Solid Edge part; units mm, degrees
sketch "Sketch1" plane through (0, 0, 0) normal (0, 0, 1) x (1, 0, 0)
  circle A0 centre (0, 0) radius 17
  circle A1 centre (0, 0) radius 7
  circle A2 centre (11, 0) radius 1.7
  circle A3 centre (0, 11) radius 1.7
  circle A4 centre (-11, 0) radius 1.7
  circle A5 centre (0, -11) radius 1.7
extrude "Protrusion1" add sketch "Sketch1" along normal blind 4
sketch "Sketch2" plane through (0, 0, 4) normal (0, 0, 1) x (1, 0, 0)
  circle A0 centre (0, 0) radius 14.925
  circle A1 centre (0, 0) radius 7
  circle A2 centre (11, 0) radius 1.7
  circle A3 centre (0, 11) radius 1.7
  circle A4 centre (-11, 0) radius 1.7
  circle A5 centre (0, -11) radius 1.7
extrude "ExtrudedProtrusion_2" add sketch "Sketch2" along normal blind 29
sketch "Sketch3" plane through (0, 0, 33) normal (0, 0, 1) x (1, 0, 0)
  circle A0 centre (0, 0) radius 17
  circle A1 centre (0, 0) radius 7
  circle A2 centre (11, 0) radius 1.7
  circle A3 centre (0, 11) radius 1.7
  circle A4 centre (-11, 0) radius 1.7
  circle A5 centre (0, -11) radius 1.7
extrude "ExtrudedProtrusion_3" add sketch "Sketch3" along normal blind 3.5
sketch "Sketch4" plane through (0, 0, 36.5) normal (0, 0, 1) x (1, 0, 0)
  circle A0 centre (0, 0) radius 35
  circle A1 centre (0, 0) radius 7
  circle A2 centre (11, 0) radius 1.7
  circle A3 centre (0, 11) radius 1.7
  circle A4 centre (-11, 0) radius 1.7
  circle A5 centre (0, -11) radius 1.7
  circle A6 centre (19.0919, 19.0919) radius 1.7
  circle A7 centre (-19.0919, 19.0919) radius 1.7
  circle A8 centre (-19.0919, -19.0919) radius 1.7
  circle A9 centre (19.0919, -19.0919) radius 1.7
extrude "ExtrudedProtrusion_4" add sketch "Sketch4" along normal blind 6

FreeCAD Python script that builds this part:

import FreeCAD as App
import Part
import Sketcher
from FreeCAD import Vector
Q = App.Units.Quantity

doc = App.newDocument("Part")
params = doc.addObject("Spreadsheet::Sheet", "Params")
for row, (alias, value) in enumerate([
    ("sketch1_diameter", "34 mm"),
    ("sketch1_diameter2", "14 mm"),
    ("sketch1_diameter3", "3.4 mm"),
    ("pad1_length", "4 mm"),
    ("sketch2_diameter", "14 mm"),
    ("sketch2_diameter2", "3.4 mm"),
    ("sketch2_diameter3", "29.85 mm"),
    ("pad2_length", "29 mm"),
    ("sketch3_diameter", "34 mm"),
    ("sketch3_diameter2", "14 mm"),
    ("sketch3_diameter3", "3.4 mm"),
    ("pad3_length", "3.5 mm"),
    ("sketch4_diameter", "70 mm"),
    ("sketch4_diameter2", "14 mm"),
    ("sketch4_diameter3", "3.4 mm"),
    ("pad4_length", "6 mm"),
], start=1):
    params.set(f"A{row}", alias)
    params.set(f"B{row}", "=" + value)
    params.setAlias(f"B{row}", alias)

body = doc.addObject("PartDesign::Body", "Body")

sketch1 = body.newObject("Sketcher::SketchObject", "Sketch")
sketch1.AttachmentSupport = (doc.getObject("XY_Plane"), [""])
sketch1.MapMode = "FlatFace"
sketch1.addGeometry(Part.Circle(Vector(0, 0, 0), Vector(0, 0, 1), 17), False)
sketch1.addGeometry(Part.Circle(Vector(0, -11, 0), Vector(0, 0, 1), 1.7), False)
sketch1.addGeometry(Part.Circle(Vector(-11, 0, 0), Vector(0, 0, 1), 1.7), False)
sketch1.addGeometry(Part.Circle(Vector(0, 0, 0), Vector(0, 0, 1), 7), False)
sketch1.addGeometry(Part.Circle(Vector(11, 0, 0), Vector(0, 0, 1), 1.7), False)
sketch1.addGeometry(Part.Circle(Vector(0, 11, 0), Vector(0, 0, 1), 1.7), False)
sketch1.addConstraint(Sketcher.Constraint("Coincident", 0, 3, -1, 1))
sketch1.addConstraint(Sketcher.Constraint("Coincident", 3, 3, -1, 1))
sketch1.addConstraint(Sketcher.Constraint("Equal", 1, 2))
sketch1.addConstraint(Sketcher.Constraint("Equal", 2, 4))
sketch1.addConstraint(Sketcher.Constraint("Equal", 4, 5))
sketch1.addConstraint(Sketcher.Constraint("Symmetric", 2, 3, 4, 3, -1, 1))
sketch1.addConstraint(Sketcher.Constraint("Symmetric", 1, 3, 5, 3, -1, 1))
sketch1.addConstraint(Sketcher.Constraint("PointOnObject", 1, 3, -2))
sketch1.addConstraint(Sketcher.Constraint("PointOnObject", 2, 3, -1))
sketch1.addConstraint(Sketcher.Constraint("Diameter", 0, Q("34 mm")))
sketch1.addConstraint(Sketcher.Constraint("Diameter", 3, Q("14 mm")))
sketch1.addConstraint(Sketcher.Constraint("Diameter", 1, Q("3.4 mm")))
sketch1.addConstraint(Sketcher.Constraint("DistanceY", 1, 3, -1, 1, Q("11 mm")))
sketch1.addConstraint(Sketcher.Constraint("DistanceX", 2, 3, -1, 1, Q("11 mm")))
sketch1.setExpression("Constraints[9]", "Params.sketch1_diameter")
sketch1.setExpression("Constraints[10]", "Params.sketch1_diameter2")
sketch1.setExpression("Constraints[11]", "Params.sketch1_diameter3")
pad1 = body.newObject("PartDesign::Pad", "Pad")
pad1.Profile = sketch1
pad1.setExpression("Length", "Params.pad1_length")

sketch2 = body.newObject("Sketcher::SketchObject", "Sketch001")
sketch2.AttachmentSupport = (doc.getObject("XY_Plane"), [""])
sketch2.MapMode = "FlatFace"
sketch2.AttachmentOffset = App.Placement(Vector(0, 0, 4), App.Rotation())
sketch2.addGeometry(Part.Circle(Vector(0, 0, 0), Vector(0, 0, 1), 14.925), False)
sketch2.addGeometry(Part.Circle(Vector(0, -11, 0), Vector(0, 0, 1), 1.7), False)
sketch2.addGeometry(Part.Circle(Vector(-11, 0, 0), Vector(0, 0, 1), 1.7), False)
sketch2.addGeometry(Part.Circle(Vector(0, 0, 0), Vector(0, 0, 1), 7), False)
sketch2.addGeometry(Part.Circle(Vector(11, 0, 0), Vector(0, 0, 1), 1.7), False)
sketch2.addGeometry(Part.Circle(Vector(0, 11, 0), Vector(0, 0, 1), 1.7), False)
sketch2.addConstraint(Sketcher.Constraint("Coincident", 0, 3, -1, 1))
sketch2.addConstraint(Sketcher.Constraint("Coincident", 3, 3, -1, 1))
sketch2.addConstraint(Sketcher.Constraint("Equal", 1, 2))
sketch2.addConstraint(Sketcher.Constraint("Equal", 2, 4))
sketch2.addConstraint(Sketcher.Constraint("Equal", 4, 5))
sketch2.addConstraint(Sketcher.Constraint("Symmetric", 2, 3, 4, 3, -1, 1))
sketch2.addConstraint(Sketcher.Constraint("Symmetric", 1, 3, 5, 3, -1, 1))
sketch2.addConstraint(Sketcher.Constraint("PointOnObject", 1, 3, -2))
sketch2.addConstraint(Sketcher.Constraint("PointOnObject", 2, 3, -1))
sketch2.addConstraint(Sketcher.Constraint("Diameter", 3, Q("14 mm")))
sketch2.addConstraint(Sketcher.Constraint("Diameter", 1, Q("3.4 mm")))
sketch2.addConstraint(Sketcher.Constraint("Diameter", 0, Q("29.85 mm")))
sketch2.addConstraint(Sketcher.Constraint("DistanceY", 1, 3, -1, 1, Q("11 mm")))
sketch2.addConstraint(Sketcher.Constraint("DistanceX", 2, 3, -1, 1, Q("11 mm")))
sketch2.setExpression("Constraints[9]", "Params.sketch2_diameter")
sketch2.setExpression("Constraints[10]", "Params.sketch2_diameter2")
sketch2.setExpression("Constraints[11]", "Params.sketch2_diameter3")
pad2 = body.newObject("PartDesign::Pad", "Pad001")
pad2.Profile = sketch2
pad2.setExpression("Length", "Params.pad2_length")

sketch3 = body.newObject("Sketcher::SketchObject", "Sketch002")
sketch3.AttachmentSupport = (doc.getObject("XY_Plane"), [""])
sketch3.MapMode = "FlatFace"
sketch3.AttachmentOffset = App.Placement(Vector(0, 0, 33), App.Rotation())
sketch3.addGeometry(Part.Circle(Vector(0, 0, 0), Vector(0, 0, 1), 17), False)
sketch3.addGeometry(Part.Circle(Vector(0, -11, 0), Vector(0, 0, 1), 1.7), False)
sketch3.addGeometry(Part.Circle(Vector(-11, 0, 0), Vector(0, 0, 1), 1.7), False)
sketch3.addGeometry(Part.Circle(Vector(0, 0, 0), Vector(0, 0, 1), 7), False)
sketch3.addGeometry(Part.Circle(Vector(11, 0, 0), Vector(0, 0, 1), 1.7), False)
sketch3.addGeometry(Part.Circle(Vector(0, 11, 0), Vector(0, 0, 1), 1.7), False)
sketch3.addConstraint(Sketcher.Constraint("Coincident", 0, 3, -1, 1))
sketch3.addConstraint(Sketcher.Constraint("Coincident", 3, 3, -1, 1))
sketch3.addConstraint(Sketcher.Constraint("Equal", 1, 2))
sketch3.addConstraint(Sketcher.Constraint("Equal", 2, 4))
sketch3.addConstraint(Sketcher.Constraint("Equal", 4, 5))
sketch3.addConstraint(Sketcher.Constraint("Symmetric", 2, 3, 4, 3, -1, 1))
sketch3.addConstraint(Sketcher.Constraint("Symmetric", 1, 3, 5, 3, -1, 1))
sketch3.addConstraint(Sketcher.Constraint("PointOnObject", 1, 3, -2))
sketch3.addConstraint(Sketcher.Constraint("PointOnObject", 2, 3, -1))
sketch3.addConstraint(Sketcher.Constraint("Diameter", 0, Q("34 mm")))
sketch3.addConstraint(Sketcher.Constraint("Diameter", 3, Q("14 mm")))
sketch3.addConstraint(Sketcher.Constraint("Diameter", 1, Q("3.4 mm")))
sketch3.addConstraint(Sketcher.Constraint("DistanceY", 1, 3, -1, 1, Q("11 mm")))
sketch3.addConstraint(Sketcher.Constraint("DistanceX", 2, 3, -1, 1, Q("11 mm")))
sketch3.setExpression("Constraints[9]", "Params.sketch3_diameter")
sketch3.setExpression("Constraints[10]", "Params.sketch3_diameter2")
sketch3.setExpression("Constraints[11]", "Params.sketch3_diameter3")
pad3 = body.newObject("PartDesign::Pad", "Pad002")
pad3.Profile = sketch3
pad3.setExpression("Length", "Params.pad3_length")

sketch4 = body.newObject("Sketcher::SketchObject", "Sketch003")
sketch4.AttachmentSupport = (doc.getObject("XY_Plane"), [""])
sketch4.MapMode = "FlatFace"
sketch4.AttachmentOffset = App.Placement(Vector(0, 0, 36.5), App.Rotation())
sketch4.addGeometry(Part.Circle(Vector(0, 0, 0), Vector(0, 0, 1), 35), False)
sketch4.addGeometry(Part.Circle(Vector(-19.0919, -19.0919, 0), Vector(0, 0, 1), 1.7), False)
sketch4.addGeometry(Part.Circle(Vector(19.0919, -19.0919, 0), Vector(0, 0, 1), 1.7), False)
sketch4.addGeometry(Part.Circle(Vector(0, -11, 0), Vector(0, 0, 1), 1.7), False)
sketch4.addGeometry(Part.Circle(Vector(-11, 0, 0), Vector(0, 0, 1), 1.7), False)
sketch4.addGeometry(Part.Circle(Vector(-19.0919, 19.0919, 0), Vector(0, 0, 1), 1.7), False)
sketch4.addGeometry(Part.Circle(Vector(0, 0, 0), Vector(0, 0, 1), 7), False)
sketch4.addGeometry(Part.Circle(Vector(11, 0, 0), Vector(0, 0, 1), 1.7), False)
sketch4.addGeometry(Part.Circle(Vector(0, 11, 0), Vector(0, 0, 1), 1.7), False)
sketch4.addGeometry(Part.Circle(Vector(19.0919, 19.0919, 0), Vector(0, 0, 1), 1.7), False)
sketch4.addConstraint(Sketcher.Constraint("Coincident", 0, 3, -1, 1))
sketch4.addConstraint(Sketcher.Constraint("Coincident", 6, 3, -1, 1))
sketch4.addConstraint(Sketcher.Constraint("Equal", 1, 2))
sketch4.addConstraint(Sketcher.Constraint("Equal", 2, 3))
sketch4.addConstraint(Sketcher.Constraint("Equal", 3, 4))
sketch4.addConstraint(Sketcher.Constraint("Equal", 4, 5))
sketch4.addConstraint(Sketcher.Constraint("Equal", 5, 7))
sketch4.addConstraint(Sketcher.Constraint("Equal", 7, 8))
sketch4.addConstraint(Sketcher.Constraint("Equal", 8, 9))
sketch4.addConstraint(Sketcher.Constraint("Symmetric", 2, 3, 5, 3, -1, 1))
sketch4.addConstraint(Sketcher.Constraint("Symmetric", 4, 3, 7, 3, -1, 1))
sketch4.addConstraint(Sketcher.Constraint("Symmetric", 3, 3, 8, 3, -1, 1))
sketch4.addConstraint(Sketcher.Constraint("Symmetric", 1, 3, 9, 3, -1, 1))
sketch4.addConstraint(Sketcher.Constraint("Symmetric", 1, 3, 2, 3, -2))
sketch4.addConstraint(Sketcher.Constraint("PointOnObject", 3, 3, -2))
sketch4.addConstraint(Sketcher.Constraint("PointOnObject", 4, 3, -1))
sketch4.addConstraint(Sketcher.Constraint("Diameter", 0, Q("70 mm")))
sketch4.addConstraint(Sketcher.Constraint("Diameter", 6, Q("14 mm")))
sketch4.addConstraint(Sketcher.Constraint("Diameter", 1, Q("3.4 mm")))
sketch4.addConstraint(Sketcher.Constraint("DistanceY", 3, 3, -1, 1, Q("11 mm")))
sketch4.addConstraint(Sketcher.Constraint("DistanceX", 4, 3, -1, 1, Q("11 mm")))
sketch4.addConstraint(Sketcher.Constraint("DistanceX", 1, 3, -1, 1, Q("19.092 mm")))
sketch4.addConstraint(Sketcher.Constraint("DistanceY", 1, 3, -1, 1, Q("19.092 mm")))
sketch4.setExpression("Constraints[16]", "Params.sketch4_diameter")
sketch4.setExpression("Constraints[17]", "Params.sketch4_diameter2")
sketch4.setExpression("Constraints[18]", "Params.sketch4_diameter3")
pad4 = body.newObject("PartDesign::Pad", "Pad003")
pad4.Profile = sketch4
pad4.setExpression("Length", "Params.pad4_length")

doc.recompute()
